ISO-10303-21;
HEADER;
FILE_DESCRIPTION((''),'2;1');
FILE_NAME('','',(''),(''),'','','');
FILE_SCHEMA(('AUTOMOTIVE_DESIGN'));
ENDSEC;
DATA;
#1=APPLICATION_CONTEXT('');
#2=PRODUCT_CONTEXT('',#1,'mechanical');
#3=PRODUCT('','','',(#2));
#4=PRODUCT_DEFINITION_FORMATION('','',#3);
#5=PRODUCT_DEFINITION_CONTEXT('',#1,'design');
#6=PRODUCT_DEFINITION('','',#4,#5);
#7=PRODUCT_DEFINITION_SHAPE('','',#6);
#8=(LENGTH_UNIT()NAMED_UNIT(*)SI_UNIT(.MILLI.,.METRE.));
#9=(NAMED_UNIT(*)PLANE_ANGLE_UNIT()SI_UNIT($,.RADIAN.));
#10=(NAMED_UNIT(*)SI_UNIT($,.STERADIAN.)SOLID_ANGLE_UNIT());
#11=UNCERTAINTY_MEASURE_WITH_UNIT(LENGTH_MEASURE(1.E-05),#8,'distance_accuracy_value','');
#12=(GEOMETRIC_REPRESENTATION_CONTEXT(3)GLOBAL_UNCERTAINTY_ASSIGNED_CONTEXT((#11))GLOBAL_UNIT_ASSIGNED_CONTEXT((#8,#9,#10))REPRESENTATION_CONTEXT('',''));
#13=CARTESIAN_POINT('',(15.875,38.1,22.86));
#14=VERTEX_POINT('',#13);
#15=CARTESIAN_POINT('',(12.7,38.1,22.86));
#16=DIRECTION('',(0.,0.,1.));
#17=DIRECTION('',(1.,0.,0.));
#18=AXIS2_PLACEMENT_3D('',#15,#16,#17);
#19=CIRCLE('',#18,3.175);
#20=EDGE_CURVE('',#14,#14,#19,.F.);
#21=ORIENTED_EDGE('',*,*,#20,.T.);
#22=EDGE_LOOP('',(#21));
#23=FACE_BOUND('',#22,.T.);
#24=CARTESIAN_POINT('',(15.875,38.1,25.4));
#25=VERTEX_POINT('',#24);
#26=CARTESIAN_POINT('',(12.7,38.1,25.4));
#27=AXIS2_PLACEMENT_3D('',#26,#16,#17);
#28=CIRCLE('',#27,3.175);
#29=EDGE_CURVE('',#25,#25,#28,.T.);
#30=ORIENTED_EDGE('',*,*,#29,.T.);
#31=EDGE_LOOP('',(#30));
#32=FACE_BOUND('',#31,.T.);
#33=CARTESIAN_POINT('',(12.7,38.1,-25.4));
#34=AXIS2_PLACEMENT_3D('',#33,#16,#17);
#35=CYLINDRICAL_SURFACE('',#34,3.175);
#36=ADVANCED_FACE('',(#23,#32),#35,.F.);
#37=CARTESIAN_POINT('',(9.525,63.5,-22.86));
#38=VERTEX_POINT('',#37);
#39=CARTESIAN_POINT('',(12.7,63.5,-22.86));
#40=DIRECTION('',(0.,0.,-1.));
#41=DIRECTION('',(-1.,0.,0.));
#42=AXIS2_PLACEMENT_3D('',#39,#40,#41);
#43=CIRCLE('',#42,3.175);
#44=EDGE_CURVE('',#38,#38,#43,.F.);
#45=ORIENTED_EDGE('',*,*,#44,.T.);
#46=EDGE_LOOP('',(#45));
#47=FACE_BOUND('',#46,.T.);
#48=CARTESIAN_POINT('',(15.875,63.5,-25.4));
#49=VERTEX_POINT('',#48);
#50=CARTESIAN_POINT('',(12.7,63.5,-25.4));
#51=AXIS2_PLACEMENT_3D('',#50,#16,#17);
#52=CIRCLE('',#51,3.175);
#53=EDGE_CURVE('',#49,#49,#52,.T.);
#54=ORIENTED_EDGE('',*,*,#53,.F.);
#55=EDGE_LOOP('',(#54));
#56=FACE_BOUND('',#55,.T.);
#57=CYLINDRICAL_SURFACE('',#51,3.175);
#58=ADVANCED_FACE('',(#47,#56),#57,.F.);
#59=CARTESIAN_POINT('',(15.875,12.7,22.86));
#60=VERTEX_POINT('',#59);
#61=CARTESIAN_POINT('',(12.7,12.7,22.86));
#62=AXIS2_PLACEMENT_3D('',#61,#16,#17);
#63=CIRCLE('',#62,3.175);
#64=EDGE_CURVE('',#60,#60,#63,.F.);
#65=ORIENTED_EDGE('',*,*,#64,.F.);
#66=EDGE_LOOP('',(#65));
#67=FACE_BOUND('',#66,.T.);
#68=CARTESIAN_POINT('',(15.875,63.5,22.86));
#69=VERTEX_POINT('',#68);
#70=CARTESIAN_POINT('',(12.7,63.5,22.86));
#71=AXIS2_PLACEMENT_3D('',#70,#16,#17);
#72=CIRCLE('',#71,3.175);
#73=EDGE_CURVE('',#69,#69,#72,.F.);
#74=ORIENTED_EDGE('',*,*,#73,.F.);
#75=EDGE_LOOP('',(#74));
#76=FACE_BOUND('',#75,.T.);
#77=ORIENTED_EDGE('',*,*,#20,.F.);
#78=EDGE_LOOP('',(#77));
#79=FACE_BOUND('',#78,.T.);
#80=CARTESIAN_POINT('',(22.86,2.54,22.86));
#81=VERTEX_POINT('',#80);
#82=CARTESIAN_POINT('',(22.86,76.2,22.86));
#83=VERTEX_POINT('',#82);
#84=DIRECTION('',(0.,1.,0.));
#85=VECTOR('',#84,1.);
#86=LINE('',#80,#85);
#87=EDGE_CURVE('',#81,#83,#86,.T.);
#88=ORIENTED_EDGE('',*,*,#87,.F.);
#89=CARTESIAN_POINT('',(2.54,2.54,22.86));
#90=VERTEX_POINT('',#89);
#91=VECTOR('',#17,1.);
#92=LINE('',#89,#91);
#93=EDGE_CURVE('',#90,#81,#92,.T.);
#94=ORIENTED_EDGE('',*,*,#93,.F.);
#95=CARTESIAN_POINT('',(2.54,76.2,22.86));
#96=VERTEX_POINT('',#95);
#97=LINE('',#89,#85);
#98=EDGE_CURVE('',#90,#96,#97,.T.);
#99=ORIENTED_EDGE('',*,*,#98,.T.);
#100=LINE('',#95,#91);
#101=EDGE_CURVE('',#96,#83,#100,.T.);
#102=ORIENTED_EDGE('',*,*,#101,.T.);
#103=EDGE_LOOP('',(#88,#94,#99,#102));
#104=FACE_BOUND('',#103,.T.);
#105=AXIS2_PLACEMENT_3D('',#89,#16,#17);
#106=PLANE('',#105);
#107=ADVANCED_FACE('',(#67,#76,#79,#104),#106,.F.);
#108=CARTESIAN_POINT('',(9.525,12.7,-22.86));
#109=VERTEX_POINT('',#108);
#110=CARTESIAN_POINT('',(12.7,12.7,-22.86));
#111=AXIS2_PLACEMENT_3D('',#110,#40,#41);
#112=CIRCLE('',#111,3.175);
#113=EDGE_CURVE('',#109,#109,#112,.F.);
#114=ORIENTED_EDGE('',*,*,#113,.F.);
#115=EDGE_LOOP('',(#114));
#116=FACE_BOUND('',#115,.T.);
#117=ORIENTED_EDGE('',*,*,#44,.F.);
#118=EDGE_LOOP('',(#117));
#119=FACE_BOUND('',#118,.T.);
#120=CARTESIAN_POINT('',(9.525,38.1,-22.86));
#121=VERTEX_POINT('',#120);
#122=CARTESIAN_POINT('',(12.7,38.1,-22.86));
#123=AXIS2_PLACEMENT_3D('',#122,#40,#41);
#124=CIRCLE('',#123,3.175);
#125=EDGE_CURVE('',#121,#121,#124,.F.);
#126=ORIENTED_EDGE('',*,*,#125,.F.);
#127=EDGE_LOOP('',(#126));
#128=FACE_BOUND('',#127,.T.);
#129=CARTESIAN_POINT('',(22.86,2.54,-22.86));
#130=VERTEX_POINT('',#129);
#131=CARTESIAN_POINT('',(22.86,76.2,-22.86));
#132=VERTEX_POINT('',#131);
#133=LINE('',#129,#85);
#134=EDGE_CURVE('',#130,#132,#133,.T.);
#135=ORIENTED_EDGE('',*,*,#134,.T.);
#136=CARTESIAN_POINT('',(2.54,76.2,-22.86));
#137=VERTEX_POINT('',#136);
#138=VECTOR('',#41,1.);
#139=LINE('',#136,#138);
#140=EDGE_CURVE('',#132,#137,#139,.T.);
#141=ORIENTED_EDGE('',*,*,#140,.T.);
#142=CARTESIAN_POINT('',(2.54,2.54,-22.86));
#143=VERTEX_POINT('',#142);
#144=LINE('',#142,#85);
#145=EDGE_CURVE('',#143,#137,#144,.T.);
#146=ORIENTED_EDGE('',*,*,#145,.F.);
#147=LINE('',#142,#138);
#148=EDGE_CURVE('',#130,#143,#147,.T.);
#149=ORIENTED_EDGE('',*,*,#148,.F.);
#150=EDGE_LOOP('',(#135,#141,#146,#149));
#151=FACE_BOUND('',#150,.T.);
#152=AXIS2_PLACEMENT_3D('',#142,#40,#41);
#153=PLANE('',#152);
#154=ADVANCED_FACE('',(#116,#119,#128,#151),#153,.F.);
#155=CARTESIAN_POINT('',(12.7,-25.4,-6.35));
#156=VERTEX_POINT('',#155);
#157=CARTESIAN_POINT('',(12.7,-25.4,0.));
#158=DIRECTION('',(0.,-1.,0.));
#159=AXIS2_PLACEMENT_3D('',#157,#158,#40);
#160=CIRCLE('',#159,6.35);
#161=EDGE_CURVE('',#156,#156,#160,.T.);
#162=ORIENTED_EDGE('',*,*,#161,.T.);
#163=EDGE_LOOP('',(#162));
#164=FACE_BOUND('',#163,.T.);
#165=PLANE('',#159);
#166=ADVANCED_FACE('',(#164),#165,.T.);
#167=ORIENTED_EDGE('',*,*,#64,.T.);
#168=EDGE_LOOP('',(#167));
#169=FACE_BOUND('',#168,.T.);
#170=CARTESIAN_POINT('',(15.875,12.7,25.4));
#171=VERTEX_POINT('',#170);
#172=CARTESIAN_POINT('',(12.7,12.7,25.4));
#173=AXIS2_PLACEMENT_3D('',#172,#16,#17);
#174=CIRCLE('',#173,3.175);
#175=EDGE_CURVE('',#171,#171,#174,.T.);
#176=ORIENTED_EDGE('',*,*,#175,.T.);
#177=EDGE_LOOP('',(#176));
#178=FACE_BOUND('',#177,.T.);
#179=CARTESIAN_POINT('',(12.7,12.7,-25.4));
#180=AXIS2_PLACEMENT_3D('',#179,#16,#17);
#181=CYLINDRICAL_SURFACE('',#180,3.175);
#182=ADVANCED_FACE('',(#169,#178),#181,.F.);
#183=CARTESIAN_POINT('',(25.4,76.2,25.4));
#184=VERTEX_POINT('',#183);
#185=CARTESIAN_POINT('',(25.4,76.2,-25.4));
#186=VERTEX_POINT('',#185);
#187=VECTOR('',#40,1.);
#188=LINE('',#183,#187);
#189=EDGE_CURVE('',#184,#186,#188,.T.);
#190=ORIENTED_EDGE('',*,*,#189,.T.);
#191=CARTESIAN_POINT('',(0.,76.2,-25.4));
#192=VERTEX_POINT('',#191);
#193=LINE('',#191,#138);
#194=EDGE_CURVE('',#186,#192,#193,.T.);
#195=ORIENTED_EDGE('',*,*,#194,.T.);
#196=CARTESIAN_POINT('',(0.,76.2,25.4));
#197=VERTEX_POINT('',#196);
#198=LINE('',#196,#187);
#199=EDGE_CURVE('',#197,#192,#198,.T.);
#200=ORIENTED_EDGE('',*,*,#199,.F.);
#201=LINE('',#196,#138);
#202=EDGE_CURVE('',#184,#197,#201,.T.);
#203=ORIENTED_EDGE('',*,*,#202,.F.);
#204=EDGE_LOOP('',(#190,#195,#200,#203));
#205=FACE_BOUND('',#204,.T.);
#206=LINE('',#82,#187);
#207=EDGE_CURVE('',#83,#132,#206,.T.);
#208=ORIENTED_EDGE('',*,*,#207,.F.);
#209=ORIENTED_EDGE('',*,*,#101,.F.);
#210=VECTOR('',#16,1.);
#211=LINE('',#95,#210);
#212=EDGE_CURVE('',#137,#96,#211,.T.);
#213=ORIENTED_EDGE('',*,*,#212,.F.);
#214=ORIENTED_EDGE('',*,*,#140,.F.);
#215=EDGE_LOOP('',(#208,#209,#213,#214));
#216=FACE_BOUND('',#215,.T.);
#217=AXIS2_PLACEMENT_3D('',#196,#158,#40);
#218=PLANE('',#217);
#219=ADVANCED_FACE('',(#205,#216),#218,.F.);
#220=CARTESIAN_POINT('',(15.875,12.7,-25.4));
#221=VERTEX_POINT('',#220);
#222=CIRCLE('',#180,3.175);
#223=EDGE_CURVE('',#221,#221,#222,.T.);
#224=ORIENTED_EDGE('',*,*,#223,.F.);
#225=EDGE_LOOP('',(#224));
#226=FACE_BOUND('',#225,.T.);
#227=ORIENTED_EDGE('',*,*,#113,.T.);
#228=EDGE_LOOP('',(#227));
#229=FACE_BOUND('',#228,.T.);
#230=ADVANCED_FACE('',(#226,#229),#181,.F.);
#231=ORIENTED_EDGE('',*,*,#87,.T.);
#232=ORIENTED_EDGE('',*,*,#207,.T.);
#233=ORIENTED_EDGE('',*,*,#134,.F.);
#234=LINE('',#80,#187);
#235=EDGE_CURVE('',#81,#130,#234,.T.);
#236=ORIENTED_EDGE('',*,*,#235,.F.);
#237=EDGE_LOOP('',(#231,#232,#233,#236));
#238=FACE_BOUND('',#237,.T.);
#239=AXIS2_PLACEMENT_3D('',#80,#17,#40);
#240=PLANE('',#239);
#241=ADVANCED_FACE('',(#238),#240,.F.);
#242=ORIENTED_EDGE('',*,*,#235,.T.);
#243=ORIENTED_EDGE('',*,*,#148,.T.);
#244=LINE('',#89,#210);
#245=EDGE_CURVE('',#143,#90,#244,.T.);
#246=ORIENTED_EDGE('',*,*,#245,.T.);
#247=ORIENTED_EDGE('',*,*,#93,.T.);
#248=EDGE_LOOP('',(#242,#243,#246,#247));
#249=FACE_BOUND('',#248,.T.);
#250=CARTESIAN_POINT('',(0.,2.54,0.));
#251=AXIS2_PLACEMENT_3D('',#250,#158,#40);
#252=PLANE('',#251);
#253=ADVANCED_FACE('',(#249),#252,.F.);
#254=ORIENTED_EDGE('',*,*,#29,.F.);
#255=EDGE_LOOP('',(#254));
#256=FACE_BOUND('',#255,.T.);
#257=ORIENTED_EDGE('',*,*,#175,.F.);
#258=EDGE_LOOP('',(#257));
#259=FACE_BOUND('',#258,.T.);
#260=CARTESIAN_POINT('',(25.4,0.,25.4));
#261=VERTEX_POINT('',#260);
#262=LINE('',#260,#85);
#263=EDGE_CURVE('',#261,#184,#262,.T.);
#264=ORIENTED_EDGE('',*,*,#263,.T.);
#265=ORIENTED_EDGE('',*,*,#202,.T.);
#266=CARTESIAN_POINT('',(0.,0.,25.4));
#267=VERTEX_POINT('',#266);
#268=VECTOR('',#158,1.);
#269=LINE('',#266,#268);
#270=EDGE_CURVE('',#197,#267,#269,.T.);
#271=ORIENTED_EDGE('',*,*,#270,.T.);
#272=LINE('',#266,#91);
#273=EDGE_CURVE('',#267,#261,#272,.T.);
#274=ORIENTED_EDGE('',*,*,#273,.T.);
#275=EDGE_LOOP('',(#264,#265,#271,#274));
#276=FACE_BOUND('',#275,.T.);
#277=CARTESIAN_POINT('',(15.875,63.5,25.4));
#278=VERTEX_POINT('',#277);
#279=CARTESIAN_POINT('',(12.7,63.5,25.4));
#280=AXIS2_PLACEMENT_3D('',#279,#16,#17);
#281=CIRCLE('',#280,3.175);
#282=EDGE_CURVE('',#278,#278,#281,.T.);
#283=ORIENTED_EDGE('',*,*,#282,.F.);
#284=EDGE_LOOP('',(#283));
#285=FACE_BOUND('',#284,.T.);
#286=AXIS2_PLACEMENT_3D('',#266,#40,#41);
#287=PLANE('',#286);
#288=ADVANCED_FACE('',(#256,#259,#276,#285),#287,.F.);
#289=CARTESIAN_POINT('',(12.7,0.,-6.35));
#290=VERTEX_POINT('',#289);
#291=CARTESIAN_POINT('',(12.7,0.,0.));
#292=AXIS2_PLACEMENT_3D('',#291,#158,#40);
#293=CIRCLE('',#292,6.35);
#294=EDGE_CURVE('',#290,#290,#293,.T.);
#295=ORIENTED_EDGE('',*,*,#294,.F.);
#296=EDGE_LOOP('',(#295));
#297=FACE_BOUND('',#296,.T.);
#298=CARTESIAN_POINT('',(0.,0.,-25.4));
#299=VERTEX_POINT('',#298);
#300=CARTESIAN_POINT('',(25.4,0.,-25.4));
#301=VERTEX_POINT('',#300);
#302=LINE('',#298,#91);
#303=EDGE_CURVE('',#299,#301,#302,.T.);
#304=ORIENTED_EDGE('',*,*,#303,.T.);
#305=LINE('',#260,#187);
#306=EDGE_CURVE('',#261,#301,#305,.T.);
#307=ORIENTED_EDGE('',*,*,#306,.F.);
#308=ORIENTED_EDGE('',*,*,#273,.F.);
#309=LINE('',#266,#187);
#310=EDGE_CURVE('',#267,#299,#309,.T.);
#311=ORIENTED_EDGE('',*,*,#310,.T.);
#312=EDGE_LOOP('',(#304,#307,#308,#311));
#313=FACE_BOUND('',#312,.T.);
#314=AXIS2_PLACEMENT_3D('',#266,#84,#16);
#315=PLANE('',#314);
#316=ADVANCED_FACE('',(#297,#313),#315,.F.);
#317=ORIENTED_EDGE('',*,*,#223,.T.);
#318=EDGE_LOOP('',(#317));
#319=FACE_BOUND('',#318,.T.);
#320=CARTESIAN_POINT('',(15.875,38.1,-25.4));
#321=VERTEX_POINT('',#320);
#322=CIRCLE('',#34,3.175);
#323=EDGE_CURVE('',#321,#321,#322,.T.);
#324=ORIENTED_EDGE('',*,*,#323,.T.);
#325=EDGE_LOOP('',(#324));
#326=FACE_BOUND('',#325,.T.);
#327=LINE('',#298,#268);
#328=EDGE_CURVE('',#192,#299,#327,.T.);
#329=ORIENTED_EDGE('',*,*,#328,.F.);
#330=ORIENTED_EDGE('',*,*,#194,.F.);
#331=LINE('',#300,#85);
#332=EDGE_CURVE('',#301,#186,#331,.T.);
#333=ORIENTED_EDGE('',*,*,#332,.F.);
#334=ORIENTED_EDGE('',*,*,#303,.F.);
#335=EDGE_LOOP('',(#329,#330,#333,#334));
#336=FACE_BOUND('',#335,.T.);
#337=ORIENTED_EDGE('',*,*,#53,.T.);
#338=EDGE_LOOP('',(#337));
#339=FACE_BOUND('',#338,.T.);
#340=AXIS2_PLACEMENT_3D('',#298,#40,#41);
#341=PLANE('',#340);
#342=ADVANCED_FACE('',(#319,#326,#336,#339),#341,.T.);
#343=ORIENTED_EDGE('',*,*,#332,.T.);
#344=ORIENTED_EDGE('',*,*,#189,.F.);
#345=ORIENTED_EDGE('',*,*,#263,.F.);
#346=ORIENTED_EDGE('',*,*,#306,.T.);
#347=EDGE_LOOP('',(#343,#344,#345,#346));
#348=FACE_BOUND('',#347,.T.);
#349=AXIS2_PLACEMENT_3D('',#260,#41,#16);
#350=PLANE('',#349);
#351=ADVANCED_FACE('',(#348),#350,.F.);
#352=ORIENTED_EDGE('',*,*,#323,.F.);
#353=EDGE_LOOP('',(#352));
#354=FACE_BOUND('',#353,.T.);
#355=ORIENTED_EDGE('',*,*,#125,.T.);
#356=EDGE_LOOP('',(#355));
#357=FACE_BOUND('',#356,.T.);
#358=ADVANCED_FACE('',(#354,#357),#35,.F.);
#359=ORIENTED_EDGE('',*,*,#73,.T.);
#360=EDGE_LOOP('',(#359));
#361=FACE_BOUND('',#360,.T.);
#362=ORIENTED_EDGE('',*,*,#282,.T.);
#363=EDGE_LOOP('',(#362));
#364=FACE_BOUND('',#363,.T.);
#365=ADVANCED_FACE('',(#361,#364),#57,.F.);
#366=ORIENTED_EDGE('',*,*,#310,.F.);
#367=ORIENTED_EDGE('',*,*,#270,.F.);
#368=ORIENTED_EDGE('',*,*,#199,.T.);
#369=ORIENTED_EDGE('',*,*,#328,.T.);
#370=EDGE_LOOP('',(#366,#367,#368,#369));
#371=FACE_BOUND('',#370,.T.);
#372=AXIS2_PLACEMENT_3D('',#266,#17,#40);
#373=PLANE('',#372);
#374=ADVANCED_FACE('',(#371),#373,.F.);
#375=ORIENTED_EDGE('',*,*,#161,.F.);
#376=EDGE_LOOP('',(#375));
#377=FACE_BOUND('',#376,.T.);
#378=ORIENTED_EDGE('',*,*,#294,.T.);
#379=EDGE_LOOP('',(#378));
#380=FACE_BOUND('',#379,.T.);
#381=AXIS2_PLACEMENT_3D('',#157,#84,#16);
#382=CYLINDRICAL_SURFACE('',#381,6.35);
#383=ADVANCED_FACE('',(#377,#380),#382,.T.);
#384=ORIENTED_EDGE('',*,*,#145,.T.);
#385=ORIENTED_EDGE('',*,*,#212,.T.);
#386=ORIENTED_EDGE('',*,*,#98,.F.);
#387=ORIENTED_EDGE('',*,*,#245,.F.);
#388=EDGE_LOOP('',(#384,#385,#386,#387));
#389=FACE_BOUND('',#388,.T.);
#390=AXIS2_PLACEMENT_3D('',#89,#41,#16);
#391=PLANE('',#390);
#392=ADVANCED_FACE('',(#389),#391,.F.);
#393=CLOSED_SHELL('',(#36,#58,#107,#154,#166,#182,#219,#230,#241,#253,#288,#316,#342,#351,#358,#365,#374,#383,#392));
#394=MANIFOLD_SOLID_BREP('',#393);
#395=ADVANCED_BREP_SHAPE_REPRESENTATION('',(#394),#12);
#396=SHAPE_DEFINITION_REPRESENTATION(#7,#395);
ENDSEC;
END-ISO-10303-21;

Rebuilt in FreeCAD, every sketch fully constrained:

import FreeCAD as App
import Part
import Sketcher
from FreeCAD import Vector
Q = App.Units.Quantity


def add_polygon(sketch, points):
    """Adds a closed chain of lines whose ends are joined by coincident constraints."""
    first, n = sketch.GeometryCount, len(points)
    for a, b in zip(points, points[1:] + points[:1]):
        sketch.addGeometry(Part.LineSegment(App.Vector(*a, 0), App.Vector(*b, 0)), False)
    for i in range(n):
        sketch.addConstraint(Sketcher.Constraint("Coincident", first + i, 2, first + (i + 1) % n, 1))

doc = App.newDocument("Part")
body = doc.addObject("PartDesign::Body", "Body")

sketch1 = doc.addObject("Sketcher::SketchObject", "Sketch")
body.addObject(sketch1)
sketch1.AttachmentSupport = (doc.XY_Plane, [""])
sketch1.MapMode = "FlatFace"
add_polygon(sketch1, [(0, 76.2), (0, 0), (25.4, 0), (25.4, 76.2)])
sketch1.addConstraint(Sketcher.Constraint("Vertical", 0))
sketch1.addConstraint(Sketcher.Constraint("Horizontal", 1))
sketch1.addConstraint(Sketcher.Constraint("Vertical", 2))
sketch1.addConstraint(Sketcher.Constraint("Horizontal", 3))
sketch1.addConstraint(Sketcher.Constraint("Coincident", 0, 2, -1, 1))
sketch1.addConstraint(Sketcher.Constraint("DistanceX", 1, 1, 1, 2, Q("1 in")))
sketch1.addConstraint(Sketcher.Constraint("DistanceY", 0, 2, 0, 1, Q("3 in")))
pad1 = doc.addObject("PartDesign::Pad", "Pad")
body.addObject(pad1)
pad1.Profile = sketch1
pad1.Length = Q("2 in")
pad1.Midplane = True

sketch2 = doc.addObject("Sketcher::SketchObject", "Sketch001")
body.addObject(sketch2)
sketch2.AttachmentSupport = (doc.XY_Plane, [""])
sketch2.MapMode = "FlatFace"
sketch2.AttachmentOffset = App.Placement(Vector(0, 0, 1 * 25.4), App.Rotation())
sketch2.addGeometry(Part.Circle(Vector(12.7, 38.1, 0), Vector(0, 0, 1), 3.175), False)
sketch2.addGeometry(Part.Circle(Vector(12.7, 63.5, 0), Vector(0, 0, 1), 3.175), False)
sketch2.addGeometry(Part.Circle(Vector(12.7, 88.9, 0), Vector(0, 0, 1), 3.175), False)
sketch2.addGeometry(Part.Circle(Vector(12.7, 12.7, 0), Vector(0, 0, 1), 3.175), False)
sketch2.addConstraint(Sketcher.Constraint("Equal", 0, 1))
sketch2.addConstraint(Sketcher.Constraint("Equal", 1, 2))
sketch2.addConstraint(Sketcher.Constraint("Equal", 2, 3))
sketch2.addConstraint(Sketcher.Constraint("Vertical", 0, 3, 1, 3))
sketch2.addConstraint(Sketcher.Constraint("Vertical", 1, 3, 2, 3))
sketch2.addConstraint(Sketcher.Constraint("Vertical", 2, 3, 3, 3))
sketch2.addConstraint(Sketcher.Constraint("Diameter", 0, Q("0.25 in")))
sketch2.addConstraint(Sketcher.Constraint("DistanceY", 0, 3, 1, 3, Q("1 in")))
sketch2.addConstraint(Sketcher.Constraint("DistanceY", 1, 3, 2, 3, Q("1 in")))
sketch2.addConstraint(Sketcher.Constraint("DistanceY", 3, 3, 0, 3, Q("1 in")))
sketch2.addConstraint(Sketcher.Constraint("DistanceX", -1, 1, 0, 3, Q("0.5 in")))
sketch2.addConstraint(Sketcher.Constraint("DistanceY", -1, 1, 0, 3, Q("1.5 in")))
pocket1 = doc.addObject("PartDesign::Pocket", "Pocket")
body.addObject(pocket1)
pocket1.Profile = sketch2
pocket1.Type = "ThroughAll"

sketch3 = doc.addObject("Sketcher::SketchObject", "Sketch002")
body.addObject(sketch3)
sketch3.AttachmentSupport = (doc.XZ_Plane, [""])
sketch3.MapMode = "FlatFace"
sketch3.AttachmentOffset = App.Placement(Vector(0, 0, -3 * 25.4), App.Rotation())
add_polygon(sketch3, [(2.54, -22.86), (2.54, 22.86), (22.86, 22.86), (22.86, -22.86)])
sketch3.addConstraint(Sketcher.Constraint("Vertical", 0))
sketch3.addConstraint(Sketcher.Constraint("Horizontal", 1))
sketch3.addConstraint(Sketcher.Constraint("Vertical", 2))
sketch3.addConstraint(Sketcher.Constraint("Horizontal", 3))
sketch3.addConstraint(Sketcher.Constraint("DistanceX", 1, 1, 1, 2, Q("0.8 in")))
sketch3.addConstraint(Sketcher.Constraint("DistanceY", 0, 1, 0, 2, Q("1.8 in")))
sketch3.addConstraint(Sketcher.Constraint("DistanceX", -1, 1, 0, 2, Q("0.1 in")))
sketch3.addConstraint(Sketcher.Constraint("DistanceY", -1, 1, 0, 2, Q("0.9 in")))
pocket2 = doc.addObject("PartDesign::Pocket", "Pocket001")
body.addObject(pocket2)
pocket2.Profile = sketch3
pocket2.Length = Q("2.9 in")
pocket2.Reversed = True

sketch4 = doc.addObject("Sketcher::SketchObject", "Sketch003")
body.addObject(sketch4)
sketch4.AttachmentSupport = (doc.XZ_Plane, [""])
sketch4.MapMode = "FlatFace"
sketch4.addGeometry(Part.Circle(Vector(12.7, 0, 0), Vector(0, 0, 1), 6.35), False)
sketch4.addConstraint(Sketcher.Constraint("PointOnObject", 0, 3, -1))
sketch4.addConstraint(Sketcher.Constraint("Diameter", 0, Q("0.5 in")))
sketch4.addConstraint(Sketcher.Constraint("DistanceX", -1, 1, 0, 3, Q("0.5 in")))
pad2 = doc.addObject("PartDesign::Pad", "Pad001")
body.addObject(pad2)
pad2.Profile = sketch4
pad2.Length = Q("1 in")

doc.recompute()
